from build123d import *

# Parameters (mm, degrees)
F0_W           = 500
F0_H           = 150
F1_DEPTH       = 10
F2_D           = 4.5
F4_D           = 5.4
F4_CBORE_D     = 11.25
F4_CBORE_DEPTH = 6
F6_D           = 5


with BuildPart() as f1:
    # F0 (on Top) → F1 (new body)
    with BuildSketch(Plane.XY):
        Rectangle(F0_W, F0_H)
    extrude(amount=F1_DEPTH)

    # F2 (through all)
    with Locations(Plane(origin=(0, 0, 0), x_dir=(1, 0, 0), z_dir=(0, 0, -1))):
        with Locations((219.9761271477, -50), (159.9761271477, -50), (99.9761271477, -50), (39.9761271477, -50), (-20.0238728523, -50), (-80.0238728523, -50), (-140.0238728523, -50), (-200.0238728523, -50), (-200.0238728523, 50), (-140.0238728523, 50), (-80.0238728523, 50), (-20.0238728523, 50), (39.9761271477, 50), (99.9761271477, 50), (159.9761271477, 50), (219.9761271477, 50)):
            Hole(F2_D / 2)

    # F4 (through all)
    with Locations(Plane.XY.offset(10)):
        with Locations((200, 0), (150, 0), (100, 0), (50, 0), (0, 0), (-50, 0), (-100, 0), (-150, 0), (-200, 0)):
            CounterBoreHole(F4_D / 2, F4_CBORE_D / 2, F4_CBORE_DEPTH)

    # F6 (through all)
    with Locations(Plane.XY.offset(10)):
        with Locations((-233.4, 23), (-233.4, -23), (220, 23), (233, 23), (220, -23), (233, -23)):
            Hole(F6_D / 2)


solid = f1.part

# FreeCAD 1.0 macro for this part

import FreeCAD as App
import Part
import Sketcher
from FreeCAD import Vector


def add_polygon(sketch, points):
    """Adds a closed chain of lines whose ends are joined by coincident constraints."""
    first, n = sketch.GeometryCount, len(points)
    for a, b in zip(points, points[1:] + points[:1]):
        sketch.addGeometry(Part.LineSegment(App.Vector(*a, 0), App.Vector(*b, 0)), False)
    for i in range(n):
        sketch.addConstraint(Sketcher.Constraint("Coincident", first + i, 2, first + (i + 1) % n, 1))

doc = App.newDocument("Part")
body = doc.addObject("PartDesign::Body", "Body")

sketch1 = doc.addObject("Sketcher::SketchObject", "Sketch")
body.addObject(sketch1)
sketch1.AttachmentSupport = (doc.XY_Plane, [""])
sketch1.MapMode = "FlatFace"
add_polygon(sketch1, [(-250, 75), (-250, -75), (250, -75), (250, 75)])
sketch1.addConstraint([
    Sketcher.Constraint("Vertical", 0),
    Sketcher.Constraint("Horizontal", 1),
    Sketcher.Constraint("Vertical", 2),
    Sketcher.Constraint("Horizontal", 3),
    Sketcher.Constraint("Symmetric", 0, 2, 2, 2, -1, 1),
    Sketcher.Constraint("DistanceX", 1, 1, 1, 2, 500.0),
    Sketcher.Constraint("DistanceY", 0, 2, 0, 1, 150.0),
])
pad1 = doc.addObject("PartDesign::Pad", "Pad")
body.addObject(pad1)
pad1.Profile = sketch1
pad1.Length = 10

sketch2 = doc.addObject("Sketcher::SketchObject", "Sketch001")
body.addObject(sketch2)
sketch2.AttachmentSupport = (doc.XY_Plane, [""])
sketch2.MapMode = "FlatFace"
sketch2.addGeometry([
    Part.Circle(Vector(219.976127, 50, 0), Vector(0, 0, 1), 2.25),
    Part.Circle(Vector(159.976127, 50, 0), Vector(0, 0, 1), 2.25),
    Part.Circle(Vector(99.976127, 50, 0), Vector(0, 0, 1), 2.25),
    Part.Circle(Vector(39.976127, 50, 0), Vector(0, 0, 1), 2.25),
    Part.Circle(Vector(-20.023873, 50, 0), Vector(0, 0, 1), 2.25),
    Part.Circle(Vector(-80.023873, 50, 0), Vector(0, 0, 1), 2.25),
    Part.Circle(Vector(-140.023873, 50, 0), Vector(0, 0, 1), 2.25),
    Part.Circle(Vector(-200.023873, 50, 0), Vector(0, 0, 1), 2.25),
    Part.Circle(Vector(-200.023873, -50, 0), Vector(0, 0, 1), 2.25),
    Part.Circle(Vector(-140.023873, -50, 0), Vector(0, 0, 1), 2.25),
    Part.Circle(Vector(-80.023873, -50, 0), Vector(0, 0, 1), 2.25),
    Part.Circle(Vector(-20.023873, -50, 0), Vector(0, 0, 1), 2.25),
    Part.Circle(Vector(39.976127, -50, 0), Vector(0, 0, 1), 2.25),
    Part.Circle(Vector(99.976127, -50, 0), Vector(0, 0, 1), 2.25),
    Part.Circle(Vector(159.976127, -50, 0), Vector(0, 0, 1), 2.25),
    Part.Circle(Vector(219.976127, -50, 0), Vector(0, 0, 1), 2.25),
], False)
sketch2.addConstraint([
    Sketcher.Constraint("Equal", 0, 1),
    Sketcher.Constraint("Equal", 1, 2),
    Sketcher.Constraint("Equal", 2, 3),
    Sketcher.Constraint("Equal", 3, 4),
    Sketcher.Constraint("Equal", 4, 5),
    Sketcher.Constraint("Equal", 5, 6),
    Sketcher.Constraint("Equal", 6, 7),
    Sketcher.Constraint("Equal", 7, 8),
    Sketcher.Constraint("Equal", 8, 9),
    Sketcher.Constraint("Equal", 9, 10),
    Sketcher.Constraint("Equal", 10, 11),
    Sketcher.Constraint("Equal", 11, 12),
    Sketcher.Constraint("Equal", 12, 13),
    Sketcher.Constraint("Equal", 13, 14),
    Sketcher.Constraint("Equal", 14, 15),
    Sketcher.Constraint("Symmetric", 7, 3, 8, 3, -1),
    Sketcher.Constraint("Symmetric", 6, 3, 9, 3, -1),
    Sketcher.Constraint("Symmetric", 5, 3, 10, 3, -1),
    Sketcher.Constraint("Symmetric", 4, 3, 11, 3, -1),
    Sketcher.Constraint("Symmetric", 3, 3, 12, 3, -1),
    Sketcher.Constraint("Symmetric", 2, 3, 13, 3, -1),
    Sketcher.Constraint("Symmetric", 1, 3, 14, 3, -1),
    Sketcher.Constraint("Symmetric", 0, 3, 15, 3, -1),
    Sketcher.Constraint("Horizontal", 0, 3, 1, 3),
    Sketcher.Constraint("Horizontal", 1, 3, 2, 3),
    Sketcher.Constraint("Horizontal", 2, 3, 3, 3),
    Sketcher.Constraint("Horizontal", 3, 3, 4, 3),
    Sketcher.Constraint("Horizontal", 4, 3, 5, 3),
    Sketcher.Constraint("Horizontal", 5, 3, 6, 3),
    Sketcher.Constraint("Horizontal", 6, 3, 7, 3),
    Sketcher.Constraint("Diameter", 0, 4.5),
    Sketcher.Constraint("DistanceY", -1, 1, 0, 3, 50.0),
    Sketcher.Constraint("DistanceX", 1, 3, 0, 3, 60.0),
    Sketcher.Constraint("DistanceX", 2, 3, 1, 3, 60.0),
    Sketcher.Constraint("DistanceX", 3, 3, 2, 3, 60.0),
    Sketcher.Constraint("DistanceX", 4, 3, 3, 3, 60.0),
    Sketcher.Constraint("DistanceX", 5, 3, 4, 3, 60.0),
    Sketcher.Constraint("DistanceX", 6, 3, 5, 3, 60.0),
    Sketcher.Constraint("DistanceX", 7, 3, 6, 3, 60.0),
    Sketcher.Constraint("DistanceX", -1, 1, 0, 3, 219.976127),
])
doc.recompute()
hole = doc.addObject("PartDesign::Hole", "Hole")
body.addObject(hole)
hole.Profile = sketch2
hole.ThreadType = "None"
hole.Diameter = 4.5
hole.DepthType = "ThroughAll"
hole.Reversed = True

sketch3 = doc.addObject("Sketcher::SketchObject", "Sketch002")
body.addObject(sketch3)
sketch3.AttachmentSupport = (doc.XY_Plane, [""])
sketch3.MapMode = "FlatFace"
sketch3.AttachmentOffset = App.Placement(Vector(0, 0, 10), App.Rotation())
sketch3.addGeometry([
    Part.Circle(Vector(200, 0, 0), Vector(0, 0, 1), 2.7),
    Part.Circle(Vector(150, 0, 0), Vector(0, 0, 1), 2.7),
    Part.Circle(Vector(100, 0, 0), Vector(0, 0, 1), 2.7),
    Part.Circle(Vector(50, 0, 0), Vector(0, 0, 1), 2.7),
    Part.Circle(Vector(0, 0, 0), Vector(0, 0, 1), 2.7),
    Part.Circle(Vector(-50, 0, 0), Vector(0, 0, 1), 2.7),
    Part.Circle(Vector(-100, 0, 0), Vector(0, 0, 1), 2.7),
    Part.Circle(Vector(-150, 0, 0), Vector(0, 0, 1), 2.7),
    Part.Circle(Vector(-200, 0, 0), Vector(0, 0, 1), 2.7),
], False)
sketch3.addConstraint([
    Sketcher.Constraint("Coincident", 4, 3, -1, 1),
    Sketcher.Constraint("Equal", 0, 1),
    Sketcher.Constraint("Equal", 1, 2),
    Sketcher.Constraint("Equal", 2, 3),
    Sketcher.Constraint("Equal", 3, 4),
    Sketcher.Constraint("Equal", 4, 5),
    Sketcher.Constraint("Equal", 5, 6),
    Sketcher.Constraint("Equal", 6, 7),
    Sketcher.Constraint("Equal", 7, 8),
    Sketcher.Constraint("Symmetric", 3, 3, 5, 3, -1, 1),
    Sketcher.Constraint("Symmetric", 2, 3, 6, 3, -1, 1),
    Sketcher.Constraint("Symmetric", 1, 3, 7, 3, -1, 1),
    Sketcher.Constraint("Symmetric", 0, 3, 8, 3, -1, 1),
    Sketcher.Constraint("PointOnObject", 0, 3, -1),
    Sketcher.Constraint("PointOnObject", 1, 3, -1),
    Sketcher.Constraint("PointOnObject", 2, 3, -1),
    Sketcher.Constraint("PointOnObject", 3, 3, -1),
    Sketcher.Constraint("Diameter", 0, 5.4),
    Sketcher.Constraint("DistanceX", -1, 1, 0, 3, 200.0),
    Sketcher.Constraint("DistanceX", -1, 1, 1, 3, 150.0),
    Sketcher.Constraint("DistanceX", -1, 1, 2, 3, 100.0),
    Sketcher.Constraint("DistanceX", -1, 1, 3, 3, 50.0),
])
doc.recompute()
hole2 = doc.addObject("PartDesign::Hole", "Hole001")
body.addObject(hole2)
hole2.Profile = sketch3
hole2.ThreadType = "None"
hole2.Diameter = 5.4
hole2.DepthType = "ThroughAll"
hole2.HoleCutType = "Counterbore"
hole2.HoleCutDiameter = 11.25
hole2.HoleCutDepth = 6

sketch4 = doc.addObject("Sketcher::SketchObject", "Sketch003")
body.addObject(sketch4)
sketch4.AttachmentSupport = (doc.XY_Plane, [""])
sketch4.MapMode = "FlatFace"
sketch4.AttachmentOffset = App.Placement(Vector(0, 0, 10), App.Rotation())
sketch4.addGeometry([
    Part.Circle(Vector(-233.4, 23, 0), Vector(0, 0, 1), 2.5),
    Part.Circle(Vector(-233.4, -23, 0), Vector(0, 0, 1), 2.5),
    Part.Circle(Vector(220, 23, 0), Vector(0, 0, 1), 2.5),
    Part.Circle(Vector(233, 23, 0), Vector(0, 0, 1), 2.5),
    Part.Circle(Vector(220, -23, 0), Vector(0, 0, 1), 2.5),
    Part.Circle(Vector(233, -23, 0), Vector(0, 0, 1), 2.5),
], False)
sketch4.addConstraint([
    Sketcher.Constraint("Equal", 0, 1),
    Sketcher.Constraint("Equal", 1, 2),
    Sketcher.Constraint("Equal", 2, 3),
    Sketcher.Constraint("Equal", 3, 4),
    Sketcher.Constraint("Equal", 4, 5),
    Sketcher.Constraint("Symmetric", 0, 3, 1, 3, -1),
    Sketcher.Constraint("Symmetric", 2, 3, 4, 3, -1),
    Sketcher.Constraint("Symmetric", 3, 3, 5, 3, -1),
    Sketcher.Constraint("Horizontal", 0, 3, 2, 3),
    Sketcher.Constraint("Horizontal", 2, 3, 3, 3),
    Sketcher.Constraint("Diameter", 0, 5.0),
    Sketcher.Constraint("DistanceY", -1, 1, 0, 3, 23.0),
    Sketcher.Constraint("DistanceX", -1, 1, 2, 3, 220.0),
    Sketcher.Constraint("DistanceX", -1, 1, 3, 3, 233.0),
    Sketcher.Constraint("DistanceX", 0, 3, -1, 1, 233.4),
])
doc.recompute()
hole3 = doc.addObject("PartDesign::Hole", "Hole002")
body.addObject(hole3)
hole3.Profile = sketch4
hole3.ThreadType = "None"
hole3.Diameter = 5
hole3.DepthType = "ThroughAll"

doc.recompute()
